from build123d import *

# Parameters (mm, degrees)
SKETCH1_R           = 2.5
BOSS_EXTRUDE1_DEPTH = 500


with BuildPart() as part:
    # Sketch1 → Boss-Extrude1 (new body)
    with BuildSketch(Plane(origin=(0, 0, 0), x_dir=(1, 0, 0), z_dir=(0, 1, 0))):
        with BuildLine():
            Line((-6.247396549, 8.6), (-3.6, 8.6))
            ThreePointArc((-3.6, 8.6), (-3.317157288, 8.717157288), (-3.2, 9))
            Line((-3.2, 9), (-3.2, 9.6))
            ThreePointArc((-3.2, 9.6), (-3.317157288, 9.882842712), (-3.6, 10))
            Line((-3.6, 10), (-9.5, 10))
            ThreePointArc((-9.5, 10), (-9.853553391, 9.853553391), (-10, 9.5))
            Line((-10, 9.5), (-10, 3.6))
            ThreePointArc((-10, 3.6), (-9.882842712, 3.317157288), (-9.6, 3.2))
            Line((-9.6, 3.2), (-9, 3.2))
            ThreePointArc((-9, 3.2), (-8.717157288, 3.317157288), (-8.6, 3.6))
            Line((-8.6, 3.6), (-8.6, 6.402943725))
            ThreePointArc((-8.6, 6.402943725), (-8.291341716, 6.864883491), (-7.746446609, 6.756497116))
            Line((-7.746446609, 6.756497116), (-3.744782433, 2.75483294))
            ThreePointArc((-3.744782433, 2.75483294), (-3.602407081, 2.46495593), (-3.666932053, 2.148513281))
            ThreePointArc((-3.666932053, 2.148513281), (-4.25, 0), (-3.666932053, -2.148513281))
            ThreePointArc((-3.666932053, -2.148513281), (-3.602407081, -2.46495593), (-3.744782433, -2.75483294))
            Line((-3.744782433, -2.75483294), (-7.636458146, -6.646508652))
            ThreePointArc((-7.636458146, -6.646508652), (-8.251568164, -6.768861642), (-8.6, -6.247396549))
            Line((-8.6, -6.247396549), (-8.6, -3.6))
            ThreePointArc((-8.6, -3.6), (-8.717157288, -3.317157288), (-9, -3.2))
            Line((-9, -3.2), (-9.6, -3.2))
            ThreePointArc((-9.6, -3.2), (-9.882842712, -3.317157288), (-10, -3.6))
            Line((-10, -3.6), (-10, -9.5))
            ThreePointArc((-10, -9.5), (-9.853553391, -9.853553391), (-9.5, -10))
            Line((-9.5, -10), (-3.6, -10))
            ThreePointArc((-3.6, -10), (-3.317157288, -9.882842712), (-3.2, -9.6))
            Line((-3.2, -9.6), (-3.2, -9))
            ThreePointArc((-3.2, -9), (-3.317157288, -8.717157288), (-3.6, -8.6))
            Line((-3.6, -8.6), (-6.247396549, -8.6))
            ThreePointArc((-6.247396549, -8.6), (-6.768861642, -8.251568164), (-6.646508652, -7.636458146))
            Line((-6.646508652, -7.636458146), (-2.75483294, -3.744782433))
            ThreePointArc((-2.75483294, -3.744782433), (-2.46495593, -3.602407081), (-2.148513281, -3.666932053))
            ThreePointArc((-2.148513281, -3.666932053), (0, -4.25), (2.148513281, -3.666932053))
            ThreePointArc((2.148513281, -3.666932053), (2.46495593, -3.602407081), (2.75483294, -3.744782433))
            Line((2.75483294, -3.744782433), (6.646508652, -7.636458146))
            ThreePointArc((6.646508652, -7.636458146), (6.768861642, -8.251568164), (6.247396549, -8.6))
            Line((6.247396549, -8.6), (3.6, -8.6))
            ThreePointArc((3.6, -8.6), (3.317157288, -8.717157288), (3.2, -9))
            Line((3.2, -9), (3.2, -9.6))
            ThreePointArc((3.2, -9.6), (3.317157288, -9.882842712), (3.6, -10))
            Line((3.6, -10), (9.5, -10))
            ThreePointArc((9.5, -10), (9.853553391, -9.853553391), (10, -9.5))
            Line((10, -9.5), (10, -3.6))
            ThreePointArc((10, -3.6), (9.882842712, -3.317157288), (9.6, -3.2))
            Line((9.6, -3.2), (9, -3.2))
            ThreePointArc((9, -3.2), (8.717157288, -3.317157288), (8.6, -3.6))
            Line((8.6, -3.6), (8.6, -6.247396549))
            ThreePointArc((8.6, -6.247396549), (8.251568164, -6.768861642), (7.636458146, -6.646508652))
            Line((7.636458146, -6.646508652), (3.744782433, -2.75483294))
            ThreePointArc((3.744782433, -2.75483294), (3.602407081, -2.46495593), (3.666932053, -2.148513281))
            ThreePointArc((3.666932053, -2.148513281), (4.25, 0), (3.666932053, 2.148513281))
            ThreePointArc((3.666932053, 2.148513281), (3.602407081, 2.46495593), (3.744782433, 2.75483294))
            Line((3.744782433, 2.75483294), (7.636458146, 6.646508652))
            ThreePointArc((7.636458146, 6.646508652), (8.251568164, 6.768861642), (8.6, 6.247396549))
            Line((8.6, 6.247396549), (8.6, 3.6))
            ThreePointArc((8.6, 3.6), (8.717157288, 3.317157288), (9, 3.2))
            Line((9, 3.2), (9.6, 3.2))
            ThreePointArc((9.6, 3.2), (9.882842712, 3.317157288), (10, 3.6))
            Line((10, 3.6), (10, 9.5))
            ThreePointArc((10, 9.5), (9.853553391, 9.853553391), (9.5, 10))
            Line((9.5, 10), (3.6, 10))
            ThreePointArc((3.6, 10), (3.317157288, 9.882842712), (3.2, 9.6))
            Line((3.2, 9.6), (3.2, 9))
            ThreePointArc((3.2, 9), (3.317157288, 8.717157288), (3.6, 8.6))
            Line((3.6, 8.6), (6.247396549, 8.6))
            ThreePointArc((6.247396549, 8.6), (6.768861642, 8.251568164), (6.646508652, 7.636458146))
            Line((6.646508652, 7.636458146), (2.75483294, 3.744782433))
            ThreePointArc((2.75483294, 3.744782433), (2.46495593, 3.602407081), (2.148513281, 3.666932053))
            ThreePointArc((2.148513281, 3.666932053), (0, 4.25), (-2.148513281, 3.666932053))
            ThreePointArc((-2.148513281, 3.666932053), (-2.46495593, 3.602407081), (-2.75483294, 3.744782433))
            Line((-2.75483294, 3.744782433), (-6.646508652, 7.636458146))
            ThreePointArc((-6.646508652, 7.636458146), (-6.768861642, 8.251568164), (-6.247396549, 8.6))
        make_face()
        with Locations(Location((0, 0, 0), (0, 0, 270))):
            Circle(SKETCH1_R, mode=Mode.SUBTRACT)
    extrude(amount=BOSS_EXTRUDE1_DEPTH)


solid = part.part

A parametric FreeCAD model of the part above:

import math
import FreeCAD as App
import Part
import Sketcher

V = App.Vector

doc = App.newDocument("Part")
params = doc.addObject("Spreadsheet::Sheet", "Params")
for row, (alias, value) in enumerate([
    ("sketch1_diameter", "5 mm"),
    ("sketch1_radius", "0.4 mm"),
    ("sketch1_radius2", "0.5 mm"),
    ("sketch1_radius3", "4.25 mm"),
    ("sketch1_width", "5.9 mm"),
    ("pad1_length", "500 mm"),
], start=1):
    params.set(f"A{row}", alias)
    params.set(f"B{row}", "=" + value)
    params.setAlias(f"B{row}", alias)

body = doc.addObject("PartDesign::Body", "Body")

# Sketch on XZ plane
sketch1 = doc.addObject("Sketcher::SketchObject", "Sketch")
body.addObject(sketch1)
sketch1.AttachmentSupport = (doc.XZ_Plane, [""])
sketch1.MapMode = "FlatFace"
sketch1.addGeometry([
    Part.LineSegment(V(-6.25, -8.6, 0), V(-3.6, -8.6, 0)),  # 0
    Part.ArcOfCircle(Part.Circle(V(-3.6, -9, 0), V(0, 0, 1), 0.4), math.radians(0), math.radians(90)),  # 1
    Part.LineSegment(V(-3.2, -9, 0), V(-3.2, -9.6, 0)),  # 2
    Part.ArcOfCircle(Part.Circle(V(-3.6, -9.6, 0), V(0, 0, 1), 0.4), math.radians(-90), math.radians(0)),  # 3
    Part.LineSegment(V(-3.6, -10, 0), V(-9.5, -10, 0)),  # 4
    Part.ArcOfCircle(Part.Circle(V(-9.5, -9.5, 0), V(0, 0, 1), 0.5), math.radians(180), math.radians(270)),  # 5
    Part.LineSegment(V(-10, -9.5, 0), V(-10, -3.6, 0)),  # 6
    Part.ArcOfCircle(Part.Circle(V(-9.6, -3.6, 0), V(0, 0, 1), 0.4), math.radians(90), math.radians(180)),  # 7
    Part.LineSegment(V(-9.6, -3.2, 0), V(-9, -3.2, 0)),  # 8
    Part.ArcOfCircle(Part.Circle(V(-9, -3.6, 0), V(0, 0, 1), 0.4), math.radians(0), math.radians(90)),  # 9
    Part.LineSegment(V(-8.6, -3.6, 0), V(-8.6, -6.4, 0)),  # 10
    Part.ArcOfCircle(Part.Circle(V(-8.1, -6.4, 0), V(0, 0, 1), 0.5), math.radians(-180), math.radians(-45)),  # 11
    Part.LineSegment(V(-7.75, -6.76, 0), V(-3.74, -2.75, 0)),  # 12
    Part.ArcOfCircle(Part.Circle(V(-4.1, -2.4, 0), V(0, 0, 1), 0.5), math.radians(-45), math.radians(30)),  # 13
    Part.ArcOfCircle(Part.Circle(V(0, 0, 0), V(0, 0, 1), 4.25), math.radians(150), math.radians(210)),  # 14
    Part.ArcOfCircle(Part.Circle(V(-4.1, 2.4, 0), V(0, 0, 1), 0.5), math.radians(-30), math.radians(45)),  # 15
    Part.LineSegment(V(-3.74, 2.75, 0), V(-7.64, 6.65, 0)),  # 16
    Part.ArcOfCircle(Part.Circle(V(-8.04, 6.25, 0), V(0, 0, 1), 0.56), math.radians(45), math.radians(180)),  # 17
    Part.LineSegment(V(-8.6, 6.25, 0), V(-8.6, 3.6, 0)),  # 18
    Part.ArcOfCircle(Part.Circle(V(-9, 3.6, 0), V(0, 0, 1), 0.4), math.radians(-90), math.radians(0)),  # 19
    Part.LineSegment(V(-9, 3.2, 0), V(-9.6, 3.2, 0)),  # 20
    Part.ArcOfCircle(Part.Circle(V(-9.6, 3.6, 0), V(0, 0, 1), 0.4), math.radians(-180), math.radians(-90)),  # 21
    Part.LineSegment(V(-10, 3.6, 0), V(-10, 9.5, 0)),  # 22
    Part.ArcOfCircle(Part.Circle(V(-9.5, 9.5, 0), V(0, 0, 1), 0.5), math.radians(90), math.radians(180)),  # 23
    Part.LineSegment(V(-9.5, 10, 0), V(-3.6, 10, 0)),  # 24
    Part.ArcOfCircle(Part.Circle(V(-3.6, 9.6, 0), V(0, 0, 1), 0.4), math.radians(0), math.radians(90)),  # 25
    Part.LineSegment(V(-3.2, 9.6, 0), V(-3.2, 9, 0)),  # 26
    Part.ArcOfCircle(Part.Circle(V(-3.6, 9, 0), V(0, 0, 1), 0.4), math.radians(-90), math.radians(0)),  # 27
    Part.LineSegment(V(-3.6, 8.6, 0), V(-6.25, 8.6, 0)),  # 28
    Part.ArcOfCircle(Part.Circle(V(-6.25, 8.04, 0), V(0, 0, 1), 0.56), math.radians(90), math.radians(225)),  # 29
    Part.LineSegment(V(-6.65, 7.64, 0), V(-2.75, 3.74, 0)),  # 30
    Part.ArcOfCircle(Part.Circle(V(-2.4, 4.1, 0), V(0, 0, 1), 0.5), math.radians(-135), math.radians(-60)),  # 31
    Part.ArcOfCircle(Part.Circle(V(0, 0, 0), V(0, 0, 1), 4.25), math.radians(60), math.radians(120)),  # 32
    Part.ArcOfCircle(Part.Circle(V(2.4, 4.1, 0), V(0, 0, 1), 0.5), math.radians(-120), math.radians(-45)),  # 33
    Part.LineSegment(V(2.75, 3.74, 0), V(6.65, 7.64, 0)),  # 34
    Part.ArcOfCircle(Part.Circle(V(6.25, 8.04, 0), V(0, 0, 1), 0.56), math.radians(-45), math.radians(90)),  # 35
    Part.LineSegment(V(6.25, 8.6, 0), V(3.6, 8.6, 0)),  # 36
    Part.ArcOfCircle(Part.Circle(V(3.6, 9, 0), V(0, 0, 1), 0.4), math.radians(-180), math.radians(-90)),  # 37
    Part.LineSegment(V(3.2, 9, 0), V(3.2, 9.6, 0)),  # 38
    Part.ArcOfCircle(Part.Circle(V(3.6, 9.6, 0), V(0, 0, 1), 0.4), math.radians(90), math.radians(180)),  # 39
    Part.LineSegment(V(3.6, 10, 0), V(9.5, 10, 0)),  # 40
    Part.ArcOfCircle(Part.Circle(V(9.5, 9.5, 0), V(0, 0, 1), 0.5), math.radians(0), math.radians(90)),  # 41
    Part.LineSegment(V(10, 9.5, 0), V(10, 3.6, 0)),  # 42
    Part.ArcOfCircle(Part.Circle(V(9.6, 3.6, 0), V(0, 0, 1), 0.4), math.radians(-90), math.radians(0)),  # 43
    Part.LineSegment(V(9.6, 3.2, 0), V(9, 3.2, 0)),  # 44
    Part.ArcOfCircle(Part.Circle(V(9, 3.6, 0), V(0, 0, 1), 0.4), math.radians(-180), math.radians(-90)),  # 45
    Part.LineSegment(V(8.6, 3.6, 0), V(8.6, 6.25, 0)),  # 46
    Part.ArcOfCircle(Part.Circle(V(8.04, 6.25, 0), V(0, 0, 1), 0.56), math.radians(0), math.radians(135)),  # 47
    Part.LineSegment(V(7.64, 6.65, 0), V(3.74, 2.75, 0)),  # 48
    Part.ArcOfCircle(Part.Circle(V(4.1, 2.4, 0), V(0, 0, 1), 0.5), math.radians(135), math.radians(210)),  # 49
    Part.ArcOfCircle(Part.Circle(V(0, 0, 0), V(0, 0, 1), 4.25), math.radians(-30), math.radians(30)),  # 50
    Part.ArcOfCircle(Part.Circle(V(4.1, -2.4, 0), V(0, 0, 1), 0.5), math.radians(150), math.radians(225)),  # 51
    Part.LineSegment(V(3.74, -2.75, 0), V(7.64, -6.65, 0)),  # 52
    Part.ArcOfCircle(Part.Circle(V(8.04, -6.25, 0), V(0, 0, 1), 0.56), math.radians(-135), math.radians(0)),  # 53
    Part.LineSegment(V(8.6, -6.25, 0), V(8.6, -3.6, 0)),  # 54
    Part.ArcOfCircle(Part.Circle(V(9, -3.6, 0), V(0, 0, 1), 0.4), math.radians(90), math.radians(180)),  # 55
    Part.LineSegment(V(9, -3.2, 0), V(9.6, -3.2, 0)),  # 56
    Part.ArcOfCircle(Part.Circle(V(9.6, -3.6, 0), V(0, 0, 1), 0.4), math.radians(0), math.radians(90)),  # 57
    Part.LineSegment(V(10, -3.6, 0), V(10, -9.5, 0)),  # 58
    Part.ArcOfCircle(Part.Circle(V(9.5, -9.5, 0), V(0, 0, 1), 0.5), math.radians(-90), math.radians(0)),  # 59
    Part.LineSegment(V(9.5, -10, 0), V(3.6, -10, 0)),  # 60
    Part.ArcOfCircle(Part.Circle(V(3.6, -9.6, 0), V(0, 0, 1), 0.4), math.radians(-180), math.radians(-90)),  # 61
    Part.LineSegment(V(3.2, -9.6, 0), V(3.2, -9, 0)),  # 62
    Part.ArcOfCircle(Part.Circle(V(3.6, -9, 0), V(0, 0, 1), 0.4), math.radians(90), math.radians(180)),  # 63
    Part.LineSegment(V(3.6, -8.6, 0), V(6.25, -8.6, 0)),  # 64
    Part.ArcOfCircle(Part.Circle(V(6.25, -8.04, 0), V(0, 0, 1), 0.56), math.radians(-90), math.radians(45)),  # 65
    Part.LineSegment(V(6.65, -7.64, 0), V(2.75, -3.74, 0)),  # 66
    Part.ArcOfCircle(Part.Circle(V(2.4, -4.1, 0), V(0, 0, 1), 0.5), math.radians(45), math.radians(120)),  # 67
    Part.ArcOfCircle(Part.Circle(V(0, 0, 0), V(0, 0, 1), 4.25), math.radians(-120), math.radians(-60)),  # 68
    Part.ArcOfCircle(Part.Circle(V(-2.4, -4.1, 0), V(0, 0, 1), 0.5), math.radians(60), math.radians(135)),  # 69
    Part.LineSegment(V(-2.75, -3.74, 0), V(-6.65, -7.64, 0)),  # 70
    Part.ArcOfCircle(Part.Circle(V(-6.25, -8.04, 0), V(0, 0, 1), 0.56), math.radians(135), math.radians(270)),  # 71
    Part.Circle(V(0, 0, 0), V(0, 0, 1), 2.5),  # 72
], False)
sketch1.addConstraint([
    Sketcher.Constraint("Tangent", 0, 2, 1, 2),
    Sketcher.Constraint("Tangent", 1, 1, 2, 1),
    Sketcher.Constraint("Tangent", 2, 2, 3, 2),
    Sketcher.Constraint("Tangent", 3, 1, 4, 1),
    Sketcher.Constraint("Tangent", 4, 2, 5, 2),
    Sketcher.Constraint("Tangent", 5, 1, 6, 1),
    Sketcher.Constraint("Tangent", 6, 2, 7, 2),
    Sketcher.Constraint("Tangent", 7, 1, 8, 1),
    Sketcher.Constraint("Tangent", 8, 2, 9, 2),
    Sketcher.Constraint("Tangent", 9, 1, 10, 1),
    Sketcher.Constraint("Tangent", 10, 2, 11, 1),
    Sketcher.Constraint("Tangent", 11, 2, 12, 1),
    Sketcher.Constraint("Tangent", 12, 2, 13, 1),
    Sketcher.Constraint("Tangent", 13, 2, 14, 2),
    Sketcher.Constraint("Tangent", 14, 1, 15, 1),
    Sketcher.Constraint("Tangent", 15, 2, 16, 1),
    Sketcher.Constraint("Tangent", 16, 2, 17, 1),
    Sketcher.Constraint("Tangent", 17, 2, 18, 1),
    Sketcher.Constraint("Tangent", 18, 2, 19, 2),
    Sketcher.Constraint("Tangent", 19, 1, 20, 1),
    Sketcher.Constraint("Tangent", 20, 2, 21, 2),
    Sketcher.Constraint("Tangent", 21, 1, 22, 1),
    Sketcher.Constraint("Tangent", 22, 2, 23, 2),
    Sketcher.Constraint("Tangent", 23, 1, 24, 1),
    Sketcher.Constraint("Tangent", 24, 2, 25, 2),
    Sketcher.Constraint("Tangent", 25, 1, 26, 1),
    Sketcher.Constraint("Tangent", 26, 2, 27, 2),
    Sketcher.Constraint("Tangent", 27, 1, 28, 1),
    Sketcher.Constraint("Tangent", 28, 2, 29, 1),
    Sketcher.Constraint("Tangent", 29, 2, 30, 1),
    Sketcher.Constraint("Tangent", 30, 2, 31, 1),
    Sketcher.Constraint("Tangent", 31, 2, 32, 2),
    Sketcher.Constraint("Tangent", 32, 1, 33, 1),
    Sketcher.Constraint("Tangent", 33, 2, 34, 1),
    Sketcher.Constraint("Tangent", 34, 2, 35, 1),
    Sketcher.Constraint("Tangent", 35, 2, 36, 1),
    Sketcher.Constraint("Tangent", 36, 2, 37, 2),
    Sketcher.Constraint("Tangent", 37, 1, 38, 1),
    Sketcher.Constraint("Tangent", 38, 2, 39, 2),
    Sketcher.Constraint("Tangent", 39, 1, 40, 1),
    Sketcher.Constraint("Tangent", 40, 2, 41, 2),
    Sketcher.Constraint("Tangent", 41, 1, 42, 1),
    Sketcher.Constraint("Tangent", 42, 2, 43, 2),
    Sketcher.Constraint("Tangent", 43, 1, 44, 1),
    Sketcher.Constraint("Tangent", 44, 2, 45, 2),
    Sketcher.Constraint("Tangent", 45, 1, 46, 1),
    Sketcher.Constraint("Tangent", 46, 2, 47, 1),
    Sketcher.Constraint("Tangent", 47, 2, 48, 1),
    Sketcher.Constraint("Tangent", 48, 2, 49, 1),
    Sketcher.Constraint("Tangent", 49, 2, 50, 2),
    Sketcher.Constraint("Tangent", 50, 1, 51, 1),
    Sketcher.Constraint("Tangent", 51, 2, 52, 1),
    Sketcher.Constraint("Tangent", 52, 2, 53, 1),
    Sketcher.Constraint("Tangent", 53, 2, 54, 1),
    Sketcher.Constraint("Tangent", 54, 2, 55, 2),
    Sketcher.Constraint("Tangent", 55, 1, 56, 1),
    Sketcher.Constraint("Tangent", 56, 2, 57, 2),
    Sketcher.Constraint("Tangent", 57, 1, 58, 1),
    Sketcher.Constraint("Tangent", 58, 2, 59, 2),
    Sketcher.Constraint("Tangent", 59, 1, 60, 1),
    Sketcher.Constraint("Tangent", 60, 2, 61, 2),
    Sketcher.Constraint("Tangent", 61, 1, 62, 1),
    Sketcher.Constraint("Tangent", 62, 2, 63, 2),
    Sketcher.Constraint("Tangent", 63, 1, 64, 1),
    Sketcher.Constraint("Tangent", 64, 2, 65, 1),
    Sketcher.Constraint("Tangent", 65, 2, 66, 1),
    Sketcher.Constraint("Tangent", 66, 2, 67, 1),
    Sketcher.Constraint("Tangent", 67, 2, 68, 2),
    Sketcher.Constraint("Tangent", 68, 1, 69, 1),
    Sketcher.Constraint("Tangent", 69, 2, 70, 1),
    Sketcher.Constraint("Tangent", 70, 2, 71, 1),
    Sketcher.Constraint("Tangent", 71, 2, 0, 1),
    Sketcher.Constraint("Horizontal", 0),
    Sketcher.Constraint("Vertical", 2),
    Sketcher.Constraint("Horizontal", 4),
    Sketcher.Constraint("Vertical", 6),
    Sketcher.Constraint("Horizontal", 8),
    Sketcher.Constraint("Vertical", 10),
    Sketcher.Constraint("Vertical", 18),
    Sketcher.Constraint("Horizontal", 20),
    Sketcher.Constraint("Vertical", 22),
    Sketcher.Constraint("Horizontal", 24),
    Sketcher.Constraint("Vertical", 26),
    Sketcher.Constraint("Horizontal", 28),
    Sketcher.Constraint("Horizontal", 36),
    Sketcher.Constraint("Vertical", 38),
    Sketcher.Constraint("Horizontal", 40),
    Sketcher.Constraint("Vertical", 42),
    Sketcher.Constraint("Horizontal", 44),
    Sketcher.Constraint("Vertical", 46),
    Sketcher.Constraint("Vertical", 54),
    Sketcher.Constraint("Horizontal", 56),
    Sketcher.Constraint("Vertical", 58),
    Sketcher.Constraint("Horizontal", 60),
    Sketcher.Constraint("Vertical", 62),
    Sketcher.Constraint("Horizontal", 64),
    Sketcher.Constraint("Coincident", 14, 3, -1, 1),
    Sketcher.Constraint("Coincident", 32, 3, -1, 1),
    Sketcher.Constraint("Coincident", 50, 3, -1, 1),
    Sketcher.Constraint("Coincident", 68, 3, -1, 1),
    Sketcher.Constraint("Coincident", 72, 3, -1, 1),
    Sketcher.Constraint("Equal", 1, 3),
    Sketcher.Constraint("Equal", 3, 7),
    Sketcher.Constraint("Equal", 7, 9),
    Sketcher.Constraint("Equal", 5, 11),
    Sketcher.Constraint("Equal", 11, 13),
    Sketcher.Constraint("Equal", 13, 15),
    Sketcher.Constraint("Equal", 9, 19),
    Sketcher.Constraint("Equal", 19, 21),
    Sketcher.Constraint("Equal", 15, 23),
    Sketcher.Constraint("Equal", 21, 25),
    Sketcher.Constraint("Equal", 25, 27),
    Sketcher.Constraint("Equal", 17, 29),
    Sketcher.Constraint("Equal", 23, 31),
    Sketcher.Constraint("Equal", 14, 32),
    Sketcher.Constraint("Equal", 31, 33),
    Sketcher.Constraint("Equal", 29, 35),
    Sketcher.Constraint("Equal", 27, 37),
    Sketcher.Constraint("Equal", 37, 39),
    Sketcher.Constraint("Equal", 33, 41),
    Sketcher.Constraint("Equal", 39, 43),
    Sketcher.Constraint("Equal", 43, 45),
    Sketcher.Constraint("Equal", 35, 47),
    Sketcher.Constraint("Equal", 41, 49),
    Sketcher.Constraint("Equal", 32, 50),
    Sketcher.Constraint("Equal", 49, 51),
    Sketcher.Constraint("Equal", 47, 53),
    Sketcher.Constraint("Equal", 45, 55),
    Sketcher.Constraint("Equal", 55, 57),
    Sketcher.Constraint("Equal", 51, 59),
    Sketcher.Constraint("Equal", 57, 61),
    Sketcher.Constraint("Equal", 61, 63),
    Sketcher.Constraint("Equal", 53, 65),
    Sketcher.Constraint("Equal", 59, 67),
    Sketcher.Constraint("Equal", 50, 68),
    Sketcher.Constraint("Equal", 67, 69),
    Sketcher.Constraint("Equal", 65, 71),
    Sketcher.Constraint("Symmetric", 1, 3, 37, 3, -1, 1),
    Sketcher.Constraint("Symmetric", 5, 3, 41, 3, -1, 1),
    Sketcher.Constraint("Symmetric", 9, 3, 45, 3, -1, 1),
    Sketcher.Constraint("Symmetric", 17, 3, 53, 3, -1, 1),
    Sketcher.Constraint("Symmetric", 21, 3, 57, 3, -1, 1),
    Sketcher.Constraint("Symmetric", 25, 3, 61, 3, -1, 1),
    Sketcher.Constraint("Symmetric", 29, 3, 65, 3, -1, 1),
    Sketcher.Constraint("Symmetric", 12, 2, 48, 2, -1, 1),
    Sketcher.Constraint("Symmetric", 33, 2, 69, 2, -1, 1),
    Sketcher.Constraint("Symmetric", 29, 3, 35, 3, -2),
    Sketcher.Constraint("Symmetric", 25, 3, 39, 3, -2),
    Sketcher.Constraint("Symmetric", 21, 3, 43, 3, -2),
    Sketcher.Constraint("Symmetric", 17, 3, 47, 3, -2),
    Sketcher.Constraint("Perpendicular", 12, 16),
    Sketcher.Constraint("Parallel", 16, 30),
    Sketcher.Constraint("Perpendicular", 30, 34),
    Sketcher.Constraint("Perpendicular", 48, 52),
    Sketcher.Constraint("Parallel", 52, 66),
    Sketcher.Constraint("Horizontal", 31, 3, 33, 3),
    Sketcher.Constraint("Equal", 56, 2),
    Sketcher.Constraint("Equal", 60, 6),
    Sketcher.Constraint("Equal", 64, 18),
    Sketcher.Constraint("Equal", 16, 30),
    Sketcher.Constraint("Diameter", 72, 5.0),
    Sketcher.Constraint("Radius", 1, 0.4),
    Sketcher.Constraint("Radius", 5, 0.5),
    Sketcher.Constraint("Radius", 14, 4.25),
    Sketcher.Constraint("DistanceX", 4, 2, 4, 1, 5.9),
    Sketcher.Constraint("DistanceX", 8, 1, 8, 2, 0.6),
    Sketcher.Constraint("DistanceY", 1, 3, -1, 1, 9.0),
    Sketcher.Constraint("Radius", 17, 0.56443),
    Sketcher.Constraint("Distance", 16, 5.503661),
])
sketch1.setExpression("Constraints[160]", "Params.sketch1_diameter")
sketch1.setExpression("Constraints[161]", "Params.sketch1_radius")
sketch1.setExpression("Constraints[162]", "Params.sketch1_radius2")
sketch1.setExpression("Constraints[163]", "Params.sketch1_radius3")
sketch1.setExpression("Constraints[164]", "Params.sketch1_width")
pad1 = doc.addObject("PartDesign::Pad", "Pad")
body.addObject(pad1)
pad1.Profile = sketch1
pad1.setExpression("Length", "Params.pad1_length")
pad1.Reversed = True

doc.recompute()
